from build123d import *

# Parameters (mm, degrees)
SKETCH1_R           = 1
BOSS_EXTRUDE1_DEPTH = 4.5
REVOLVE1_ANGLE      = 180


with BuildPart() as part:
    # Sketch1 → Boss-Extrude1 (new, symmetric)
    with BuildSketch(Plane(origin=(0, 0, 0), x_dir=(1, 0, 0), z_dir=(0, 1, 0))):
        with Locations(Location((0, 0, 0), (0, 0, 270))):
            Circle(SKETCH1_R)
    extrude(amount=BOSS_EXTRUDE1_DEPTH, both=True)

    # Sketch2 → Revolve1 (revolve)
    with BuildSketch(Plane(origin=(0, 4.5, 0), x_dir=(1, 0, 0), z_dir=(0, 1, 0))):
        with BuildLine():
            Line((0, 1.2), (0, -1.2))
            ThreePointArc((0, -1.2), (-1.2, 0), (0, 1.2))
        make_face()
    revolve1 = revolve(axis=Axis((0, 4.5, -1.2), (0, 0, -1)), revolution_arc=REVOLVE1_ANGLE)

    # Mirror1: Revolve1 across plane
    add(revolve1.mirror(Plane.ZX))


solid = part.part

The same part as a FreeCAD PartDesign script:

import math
import FreeCAD as App
import Part
import Sketcher
from FreeCAD import Vector

doc = App.newDocument("Part")
body = doc.addObject("PartDesign::Body", "Body")

# Sketch on XZ plane
sketch1 = body.newObject("Sketcher::SketchObject", "Sketch")
sketch1.AttachmentSupport = (doc.getObject("XZ_Plane"), [""])
sketch1.MapMode = "FlatFace"
sketch1.addGeometry(Part.Circle(Vector(0, 0, 0), Vector(0, 0, 1), 1), False)
sketch1.addConstraint([
    Sketcher.Constraint("Coincident", 0, 3, -1, 1),
    Sketcher.Constraint("Diameter", 0, 2.0),
])
pad1 = body.newObject("PartDesign::Pad", "Pad")
pad1.Profile = sketch1
pad1.Length = 9
pad1.Midplane = True

# Sketch on XZ plane
sketch2 = body.newObject("Sketcher::SketchObject", "Sketch001")
sketch2.AttachmentSupport = (doc.getObject("XZ_Plane"), [""])
sketch2.MapMode = "FlatFace"
sketch2.AttachmentOffset = App.Placement(Vector(0, 0, -4.5), App.Rotation())
sketch2.addGeometry([
    Part.LineSegment(Vector(0, 1.2, 0), Vector(0, -1.2, 0)),
    Part.ArcOfCircle(Part.Circle(Vector(0, 0, 0), Vector(0, 0, 1), 1.2), math.radians(90), math.radians(270)),
], False)
sketch2.addConstraint([
    Sketcher.Constraint("Coincident", 0, 1, 1, 1),
    Sketcher.Constraint("Coincident", 1, 2, 0, 2),
    Sketcher.Constraint("Vertical", 0),
    Sketcher.Constraint("Coincident", 1, 3, -1, 1),
    Sketcher.Constraint("PointOnObject", 0, 1, -2),
    Sketcher.Constraint("Radius", 1, 1.2),
])
revolution = body.newObject("PartDesign::Revolution", "Revolution")
revolution.Profile = sketch2
revolution.ReferenceAxis = (sketch2, ["V_Axis"])
revolution.Angle = 180
revolution.Reversed = True
doc.recompute()

mirrored = body.newObject("PartDesign::Mirrored", "Mirrored")
mirrored.Originals = [revolution]
mirrored.MirrorPlane = (doc.getObject("XZ_Plane"), [""])
body.Tip = mirrored

doc.recompute()
